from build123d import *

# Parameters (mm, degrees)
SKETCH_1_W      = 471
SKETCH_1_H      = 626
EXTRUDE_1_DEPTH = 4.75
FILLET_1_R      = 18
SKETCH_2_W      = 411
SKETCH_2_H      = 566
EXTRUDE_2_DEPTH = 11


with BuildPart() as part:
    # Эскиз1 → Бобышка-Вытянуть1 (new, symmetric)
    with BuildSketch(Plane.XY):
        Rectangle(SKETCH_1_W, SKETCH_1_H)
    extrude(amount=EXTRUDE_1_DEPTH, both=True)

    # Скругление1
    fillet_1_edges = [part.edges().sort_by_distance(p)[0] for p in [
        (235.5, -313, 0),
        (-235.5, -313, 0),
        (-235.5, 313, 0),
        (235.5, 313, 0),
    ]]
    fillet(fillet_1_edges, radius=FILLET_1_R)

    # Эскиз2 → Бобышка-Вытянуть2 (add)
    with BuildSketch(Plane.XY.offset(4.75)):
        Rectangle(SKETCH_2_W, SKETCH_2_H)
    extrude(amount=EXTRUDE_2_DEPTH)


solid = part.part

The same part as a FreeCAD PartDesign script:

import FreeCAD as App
import Part
import Sketcher
from FreeCAD import Vector
Q = App.Units.Quantity


def edges_at(feature, points):
    """Names of the edges that pass closest to the given points."""
    edges = feature.Shape.Edges
    near = lambda p: min(range(len(edges)), key=lambda i: edges[i].distToShape(Part.Vertex(*p))[0])
    return sorted({f"Edge{near(p) + 1}" for p in points})

doc = App.newDocument("Part")
body = doc.addObject("PartDesign::Body", "Body")

# Sketch on XY plane
sketch1 = body.newObject("Sketcher::SketchObject", "Sketch")
sketch1.AttachmentSupport = (doc.getObject("XY_Plane"), [""])
sketch1.MapMode = "FlatFace"
sketch1.addGeometry([
    Part.LineSegment(Vector(-235.5, 313, 0), Vector(-235.5, -313, 0)),
    Part.LineSegment(Vector(-235.5, -313, 0), Vector(235.5, -313, 0)),
    Part.LineSegment(Vector(235.5, -313, 0), Vector(235.5, 313, 0)),
    Part.LineSegment(Vector(235.5, 313, 0), Vector(-235.5, 313, 0)),
], False)
sketch1.addConstraint([
    Sketcher.Constraint("Coincident", 0, 2, 1, 1),
    Sketcher.Constraint("Coincident", 1, 2, 2, 1),
    Sketcher.Constraint("Coincident", 2, 2, 3, 1),
    Sketcher.Constraint("Coincident", 3, 2, 0, 1),
    Sketcher.Constraint("Vertical", 0),
    Sketcher.Constraint("Horizontal", 1),
    Sketcher.Constraint("Vertical", 2),
    Sketcher.Constraint("Horizontal", 3),
    Sketcher.Constraint("Symmetric", 0, 2, 2, 2, -1, 1),
    Sketcher.Constraint("DistanceX", 1, 1, 1, 2, Q("471 mm")),
    Sketcher.Constraint("DistanceY", 0, 2, 0, 1, Q("626 mm")),
])
pad1 = body.newObject("PartDesign::Pad", "Pad")
pad1.Profile = sketch1
pad1.Length = 9.5
pad1.Midplane = True
doc.recompute()

fillet = body.newObject("PartDesign::Fillet", "Fillet")
fillet.Base = (pad1, edges_at(pad1, [
    (235.5, -313, 0),
    (-235.5, -313, 0),
    (-235.5, 313, 0),
    (235.5, 313, 0),
]))
fillet.Radius = 18

# Sketch on XY plane
sketch2 = body.newObject("Sketcher::SketchObject", "Sketch001")
sketch2.AttachmentSupport = (doc.getObject("XY_Plane"), [""])
sketch2.MapMode = "FlatFace"
sketch2.AttachmentOffset = App.Placement(Vector(0, 0, 4.75), App.Rotation())
sketch2.addGeometry([
    Part.LineSegment(Vector(-205.5, 283, 0), Vector(-205.5, -283, 0)),
    Part.LineSegment(Vector(-205.5, -283, 0), Vector(205.5, -283, 0)),
    Part.LineSegment(Vector(205.5, -283, 0), Vector(205.5, 283, 0)),
    Part.LineSegment(Vector(205.5, 283, 0), Vector(-205.5, 283, 0)),
], False)
sketch2.addConstraint([
    Sketcher.Constraint("Coincident", 0, 2, 1, 1),
    Sketcher.Constraint("Coincident", 1, 2, 2, 1),
    Sketcher.Constraint("Coincident", 2, 2, 3, 1),
    Sketcher.Constraint("Coincident", 3, 2, 0, 1),
    Sketcher.Constraint("Vertical", 0),
    Sketcher.Constraint("Horizontal", 1),
    Sketcher.Constraint("Vertical", 2),
    Sketcher.Constraint("Horizontal", 3),
    Sketcher.Constraint("Symmetric", 0, 2, 2, 2, -1, 1),
    Sketcher.Constraint("DistanceX", 1, 1, 1, 2, Q("411 mm")),
    Sketcher.Constraint("DistanceY", 0, 2, 0, 1, Q("566 mm")),
])
pad2 = body.newObject("PartDesign::Pad", "Pad001")
pad2.Profile = sketch2
pad2.Length = 11

doc.recompute()
